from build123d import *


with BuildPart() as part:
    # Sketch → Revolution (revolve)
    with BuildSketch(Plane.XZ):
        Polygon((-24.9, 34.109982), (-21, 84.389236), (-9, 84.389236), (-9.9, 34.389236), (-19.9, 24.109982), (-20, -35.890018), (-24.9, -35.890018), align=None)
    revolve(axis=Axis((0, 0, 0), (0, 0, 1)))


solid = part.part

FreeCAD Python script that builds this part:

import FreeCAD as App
import Part
import Sketcher


def add_polygon(sketch, points):
    """Adds a closed chain of lines whose ends are joined by coincident constraints."""
    first, n = sketch.GeometryCount, len(points)
    for a, b in zip(points, points[1:] + points[:1]):
        sketch.addGeometry(Part.LineSegment(App.Vector(*a, 0), App.Vector(*b, 0)), False)
    for i in range(n):
        sketch.addConstraint(Sketcher.Constraint("Coincident", first + i, 2, first + (i + 1) % n, 1))

doc = App.newDocument("Part")
params = doc.addObject("Spreadsheet::Sheet", "Params")
for row, (alias, value) in enumerate([
    ("sketch1_width", "12 mm"),
    ("sketch1_height", "70 mm"),
    ("sketch1_width2", "4.9 mm"),
    ("revolution_angle", "360 deg"),
], start=1):
    params.set(f"A{row}", alias)
    params.set(f"B{row}", "=" + value)
    params.setAlias(f"B{row}", alias)

body = doc.addObject("PartDesign::Body", "Body")

# Sketch on XZ plane
sketch1 = body.newObject("Sketcher::SketchObject", "Sketch")
sketch1.AttachmentSupport = (doc.getObject("XZ_Plane"), [""])
sketch1.MapMode = "FlatFace"
add_polygon(sketch1, [(-21, 84.4), (-24.9, 34.1), (-24.9, -35.9), (-20, -35.9), (-19.9, 24.1), (-9.9, 34.4), (-9, 84.4)])  # lines 0-6
sketch1.addConstraint([
    Sketcher.Constraint("Vertical", 1),
    Sketcher.Constraint("Horizontal", 2),
    Sketcher.Constraint("Horizontal", 6),
    Sketcher.Constraint("DistanceX", 6, 2, 6, 1, 12.0),
    Sketcher.Constraint("DistanceY", 1, 2, 1, 1, 70.0),
    Sketcher.Constraint("DistanceX", 2, 1, 2, 2, 4.9),
    Sketcher.Constraint("DistanceX", 2, 2, -1, 1, 20.0),
    Sketcher.Constraint("DistanceX", 5, 2, -1, 1, 9.0),
    Sketcher.Constraint("DistanceX", 0, 2, 3, 2, 5.0),
    Sketcher.Constraint("DistanceY", 3, 2, 0, 2, 10.0),
    Sketcher.Constraint("DistanceX", 3, 2, 4, 2, 10.0),
    Sketcher.Constraint("DistanceY", 4, 2, 5, 2, 50.0),
    Sketcher.Constraint("DistanceY", -1, 1, 3, 2, 24.109982),
    Sketcher.Constraint("Distance", 0, 50.430282),
])
sketch1.setExpression("Constraints[10]", "Params.sketch1_width")
sketch1.setExpression("Constraints[11]", "Params.sketch1_height")
sketch1.setExpression("Constraints[12]", "Params.sketch1_width2")
revolution = body.newObject("PartDesign::Revolution", "Revolution")
revolution.Profile = sketch1
revolution.ReferenceAxis = (sketch1, ["V_Axis"])
revolution.setExpression("Angle", "Params.revolution_angle")

doc.recompute()
